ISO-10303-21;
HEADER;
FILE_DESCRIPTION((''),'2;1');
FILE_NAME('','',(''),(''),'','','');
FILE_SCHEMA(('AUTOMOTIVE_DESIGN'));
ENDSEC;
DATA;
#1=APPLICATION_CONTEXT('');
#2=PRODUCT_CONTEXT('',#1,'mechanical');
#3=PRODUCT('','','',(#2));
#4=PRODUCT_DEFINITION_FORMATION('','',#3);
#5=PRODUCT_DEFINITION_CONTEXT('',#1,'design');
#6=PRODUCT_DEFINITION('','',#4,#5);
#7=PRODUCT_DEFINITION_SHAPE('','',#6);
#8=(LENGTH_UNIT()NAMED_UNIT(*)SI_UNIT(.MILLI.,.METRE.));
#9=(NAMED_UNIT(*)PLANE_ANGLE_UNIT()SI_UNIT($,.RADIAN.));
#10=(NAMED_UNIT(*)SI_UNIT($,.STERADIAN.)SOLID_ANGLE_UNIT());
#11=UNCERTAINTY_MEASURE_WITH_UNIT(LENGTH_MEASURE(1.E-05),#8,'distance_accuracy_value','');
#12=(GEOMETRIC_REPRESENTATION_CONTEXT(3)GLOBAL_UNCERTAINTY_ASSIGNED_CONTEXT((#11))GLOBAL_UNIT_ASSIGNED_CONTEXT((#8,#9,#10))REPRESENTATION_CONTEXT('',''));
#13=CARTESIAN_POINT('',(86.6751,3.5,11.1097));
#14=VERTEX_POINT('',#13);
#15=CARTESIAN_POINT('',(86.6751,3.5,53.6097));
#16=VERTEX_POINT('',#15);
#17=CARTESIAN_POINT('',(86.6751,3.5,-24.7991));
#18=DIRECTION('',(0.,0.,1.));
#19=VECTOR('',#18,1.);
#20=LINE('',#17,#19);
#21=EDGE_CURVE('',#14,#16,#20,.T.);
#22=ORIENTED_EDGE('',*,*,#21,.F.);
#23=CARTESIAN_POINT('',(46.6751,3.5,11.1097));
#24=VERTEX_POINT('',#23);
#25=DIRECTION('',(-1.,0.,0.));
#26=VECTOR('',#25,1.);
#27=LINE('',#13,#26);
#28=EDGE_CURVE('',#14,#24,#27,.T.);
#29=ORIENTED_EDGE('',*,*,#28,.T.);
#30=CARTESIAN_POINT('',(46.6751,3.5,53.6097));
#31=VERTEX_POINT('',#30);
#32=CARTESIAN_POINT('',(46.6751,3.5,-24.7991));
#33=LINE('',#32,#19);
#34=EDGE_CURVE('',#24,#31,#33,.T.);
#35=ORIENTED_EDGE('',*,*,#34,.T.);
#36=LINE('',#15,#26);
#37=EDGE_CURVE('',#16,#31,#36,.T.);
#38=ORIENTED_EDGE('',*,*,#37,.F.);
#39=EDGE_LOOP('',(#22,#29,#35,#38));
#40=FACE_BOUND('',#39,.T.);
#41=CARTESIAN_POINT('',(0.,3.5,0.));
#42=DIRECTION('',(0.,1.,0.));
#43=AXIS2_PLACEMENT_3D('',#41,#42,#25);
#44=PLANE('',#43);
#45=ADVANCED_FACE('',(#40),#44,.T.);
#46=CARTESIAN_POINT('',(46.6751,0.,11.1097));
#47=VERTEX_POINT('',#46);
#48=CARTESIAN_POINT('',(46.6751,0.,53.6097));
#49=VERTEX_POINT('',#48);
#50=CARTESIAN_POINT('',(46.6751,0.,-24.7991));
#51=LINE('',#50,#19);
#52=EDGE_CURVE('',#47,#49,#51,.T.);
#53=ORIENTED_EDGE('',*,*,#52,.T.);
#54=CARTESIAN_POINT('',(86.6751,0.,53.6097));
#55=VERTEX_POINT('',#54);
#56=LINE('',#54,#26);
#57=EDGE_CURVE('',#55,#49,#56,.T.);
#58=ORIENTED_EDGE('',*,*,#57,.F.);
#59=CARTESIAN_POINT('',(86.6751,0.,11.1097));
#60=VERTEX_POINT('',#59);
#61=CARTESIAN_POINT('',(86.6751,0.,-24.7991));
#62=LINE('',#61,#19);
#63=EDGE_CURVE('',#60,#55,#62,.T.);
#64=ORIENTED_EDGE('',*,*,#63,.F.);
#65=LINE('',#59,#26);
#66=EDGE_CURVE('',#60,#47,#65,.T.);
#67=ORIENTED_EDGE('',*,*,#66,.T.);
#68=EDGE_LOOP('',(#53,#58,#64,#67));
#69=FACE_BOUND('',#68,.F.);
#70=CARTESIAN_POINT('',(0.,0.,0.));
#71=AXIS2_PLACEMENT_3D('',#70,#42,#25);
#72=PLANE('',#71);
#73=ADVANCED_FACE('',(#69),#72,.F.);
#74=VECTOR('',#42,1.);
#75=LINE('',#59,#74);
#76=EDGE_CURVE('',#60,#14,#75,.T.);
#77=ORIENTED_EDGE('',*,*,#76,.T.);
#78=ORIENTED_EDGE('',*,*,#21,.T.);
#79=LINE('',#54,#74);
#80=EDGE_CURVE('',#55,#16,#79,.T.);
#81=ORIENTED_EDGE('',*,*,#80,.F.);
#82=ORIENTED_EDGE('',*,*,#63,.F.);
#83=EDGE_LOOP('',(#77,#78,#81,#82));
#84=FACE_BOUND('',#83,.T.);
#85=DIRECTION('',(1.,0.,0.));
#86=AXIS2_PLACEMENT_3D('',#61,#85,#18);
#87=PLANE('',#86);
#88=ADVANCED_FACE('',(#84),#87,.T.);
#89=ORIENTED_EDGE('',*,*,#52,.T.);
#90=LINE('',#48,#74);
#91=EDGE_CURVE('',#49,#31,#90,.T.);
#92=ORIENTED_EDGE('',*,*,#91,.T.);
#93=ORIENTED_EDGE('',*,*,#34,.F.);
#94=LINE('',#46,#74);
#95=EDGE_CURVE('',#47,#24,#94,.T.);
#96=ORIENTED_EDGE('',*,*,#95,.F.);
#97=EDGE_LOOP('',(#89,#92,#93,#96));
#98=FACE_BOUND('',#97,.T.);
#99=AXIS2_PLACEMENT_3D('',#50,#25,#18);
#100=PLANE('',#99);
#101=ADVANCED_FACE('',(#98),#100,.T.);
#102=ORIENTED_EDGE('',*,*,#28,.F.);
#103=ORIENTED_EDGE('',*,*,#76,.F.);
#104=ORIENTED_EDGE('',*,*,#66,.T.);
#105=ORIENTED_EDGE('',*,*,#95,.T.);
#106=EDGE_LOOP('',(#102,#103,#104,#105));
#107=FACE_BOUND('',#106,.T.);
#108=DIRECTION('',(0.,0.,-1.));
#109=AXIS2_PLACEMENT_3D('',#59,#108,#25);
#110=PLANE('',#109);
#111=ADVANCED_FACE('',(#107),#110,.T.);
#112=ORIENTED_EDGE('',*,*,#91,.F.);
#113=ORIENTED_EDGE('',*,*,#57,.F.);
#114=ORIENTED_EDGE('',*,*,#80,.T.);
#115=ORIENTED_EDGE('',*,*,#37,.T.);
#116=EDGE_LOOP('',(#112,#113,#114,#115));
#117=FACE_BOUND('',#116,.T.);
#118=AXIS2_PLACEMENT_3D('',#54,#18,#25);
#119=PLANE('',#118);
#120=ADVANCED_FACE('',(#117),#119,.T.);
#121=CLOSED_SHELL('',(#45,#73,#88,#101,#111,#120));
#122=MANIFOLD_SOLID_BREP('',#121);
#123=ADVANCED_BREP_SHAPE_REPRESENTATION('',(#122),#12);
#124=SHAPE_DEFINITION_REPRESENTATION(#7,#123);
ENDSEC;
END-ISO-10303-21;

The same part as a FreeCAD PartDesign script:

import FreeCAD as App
import Part
import Sketcher

V = App.Vector
Q = App.Units.Quantity

doc = App.newDocument("Part")
body = doc.addObject("PartDesign::Body", "Body")

# Sketch on XZ plane
sketch1 = doc.addObject("Sketcher::SketchObject", "Sketch")
body.addObject(sketch1)
sketch1.AttachmentSupport = (doc.XZ_Plane, [""])
sketch1.MapMode = "FlatFace"
sketch1.addGeometry(Part.LineSegment(V(87, -25, 0), V(-62, -25, 0)), False)
sketch1.addGeometry(Part.LineSegment(V(-62, -25, 0), V(-62, 54, 0)), False)
sketch1.addGeometry(Part.LineSegment(V(-62, 54, 0), V(87, 54, 0)), False)
sketch1.addGeometry(Part.LineSegment(V(87, 54, 0), V(87, -25, 0)), False)
sketch1.addConstraint(Sketcher.Constraint("Coincident", 0, 2, 1, 1))
sketch1.addConstraint(Sketcher.Constraint("Coincident", 1, 2, 2, 1))
sketch1.addConstraint(Sketcher.Constraint("Coincident", 2, 2, 3, 1))
sketch1.addConstraint(Sketcher.Constraint("Coincident", 3, 2, 0, 1))
sketch1.addConstraint(Sketcher.Constraint("Horizontal", 0))
sketch1.addConstraint(Sketcher.Constraint("Vertical", 1))
sketch1.addConstraint(Sketcher.Constraint("Horizontal", 2))
sketch1.addConstraint(Sketcher.Constraint("Vertical", 3))
sketch1.addConstraint(Sketcher.Constraint("DistanceX", 0, 2, 0, 1, Q("148.1865 mm")))
sketch1.addConstraint(Sketcher.Constraint("DistanceY", 1, 1, 1, 2, Q("78.4088 mm")))
sketch1.addConstraint(Sketcher.Constraint("DistanceY", 0, 2, -1, 1, Q("24.799 mm")))
sketch1.addConstraint(Sketcher.Constraint("DistanceX", -1, 1, 2, 2, Q("86.675 mm")))
pad1 = doc.addObject("PartDesign::Pad", "Pad")
body.addObject(pad1)
pad1.Profile = sketch1
pad1.Length = 3.5
pad1.Reversed = True

# Sketch on YZ plane
sketch2 = doc.addObject("Sketcher::SketchObject", "Sketch001")
body.addObject(sketch2)
sketch2.AttachmentSupport = (doc.YZ_Plane, [""])
sketch2.MapMode = "FlatFace"
sketch2.AttachmentOffset = App.Placement(V(0, 0, -61.5114), App.Rotation())
sketch2.addGeometry(Part.LineSegment(V(3.5, -24.8, 0), V(0, -24.8, 0)), False)
sketch2.addGeometry(Part.LineSegment(V(0, -24.8, 0), V(0, 53.6, 0)), False)
sketch2.addGeometry(Part.LineSegment(V(0, 53.6, 0), V(3.5, 53.6, 0)), False)
sketch2.addGeometry(Part.LineSegment(V(3.5, 53.6, 0), V(3.5, -24.8, 0)), False)
sketch2.addConstraint(Sketcher.Constraint("Coincident", 0, 2, 1, 1))
sketch2.addConstraint(Sketcher.Constraint("Coincident", 1, 2, 2, 1))
sketch2.addConstraint(Sketcher.Constraint("Coincident", 2, 2, 3, 1))
sketch2.addConstraint(Sketcher.Constraint("Coincident", 3, 2, 0, 1))
sketch2.addConstraint(Sketcher.Constraint("Horizontal", 0))
sketch2.addConstraint(Sketcher.Constraint("Vertical", 1))
sketch2.addConstraint(Sketcher.Constraint("Horizontal", 2))
sketch2.addConstraint(Sketcher.Constraint("Vertical", 3))
sketch2.addConstraint(Sketcher.Constraint("PointOnObject", 0, 2, -2))
sketch2.addConstraint(Sketcher.Constraint("DistanceX", 0, 2, 0, 1, Q("3.5 mm")))
sketch2.addConstraint(Sketcher.Constraint("DistanceY", 1, 1, 1, 2, Q("78.4088 mm")))
sketch2.addConstraint(Sketcher.Constraint("DistanceY", 0, 2, -1, 1, Q("24.799 mm")))
pocket1 = doc.addObject("PartDesign::Pocket", "Pocket")
body.addObject(pocket1)
pocket1.Profile = sketch2
pocket1.Length = 108.1865
pocket1.Reversed = True

# Sketch on XY plane
sketch3 = doc.addObject("Sketcher::SketchObject", "Sketch002")
body.addObject(sketch3)
sketch3.AttachmentSupport = (doc.XY_Plane, [""])
sketch3.MapMode = "FlatFace"
sketch3.AttachmentOffset = App.Placement(V(0, 0, -24.7991), App.Rotation())
sketch3.addGeometry(Part.LineSegment(V(86.7, 0, 0), V(46.7, 0, 0)), False)
sketch3.addGeometry(Part.LineSegment(V(46.7, 0, 0), V(46.7, 3.5, 0)), False)
sketch3.addGeometry(Part.LineSegment(V(46.7, 3.5, 0), V(86.7, 3.5, 0)), False)
sketch3.addGeometry(Part.LineSegment(V(86.7, 3.5, 0), V(86.7, 0, 0)), False)
sketch3.addConstraint(Sketcher.Constraint("Coincident", 0, 2, 1, 1))
sketch3.addConstraint(Sketcher.Constraint("Coincident", 1, 2, 2, 1))
sketch3.addConstraint(Sketcher.Constraint("Coincident", 2, 2, 3, 1))
sketch3.addConstraint(Sketcher.Constraint("Coincident", 3, 2, 0, 1))
sketch3.addConstraint(Sketcher.Constraint("Horizontal", 0))
sketch3.addConstraint(Sketcher.Constraint("Vertical", 1))
sketch3.addConstraint(Sketcher.Constraint("Horizontal", 2))
sketch3.addConstraint(Sketcher.Constraint("Vertical", 3))
sketch3.addConstraint(Sketcher.Constraint("PointOnObject", 0, 2, -1))
sketch3.addConstraint(Sketcher.Constraint("DistanceX", 0, 2, 0, 1, Q("40 mm")))
sketch3.addConstraint(Sketcher.Constraint("DistanceY", 1, 1, 1, 2, Q("3.5 mm")))
sketch3.addConstraint(Sketcher.Constraint("DistanceX", -1, 1, 0, 2, Q("46.675 mm")))
pocket2 = doc.addObject("PartDesign::Pocket", "Pocket001")
body.addObject(pocket2)
pocket2.Profile = sketch3
pocket2.Length = 35.9088
pocket2.Reversed = True

doc.recompute()
